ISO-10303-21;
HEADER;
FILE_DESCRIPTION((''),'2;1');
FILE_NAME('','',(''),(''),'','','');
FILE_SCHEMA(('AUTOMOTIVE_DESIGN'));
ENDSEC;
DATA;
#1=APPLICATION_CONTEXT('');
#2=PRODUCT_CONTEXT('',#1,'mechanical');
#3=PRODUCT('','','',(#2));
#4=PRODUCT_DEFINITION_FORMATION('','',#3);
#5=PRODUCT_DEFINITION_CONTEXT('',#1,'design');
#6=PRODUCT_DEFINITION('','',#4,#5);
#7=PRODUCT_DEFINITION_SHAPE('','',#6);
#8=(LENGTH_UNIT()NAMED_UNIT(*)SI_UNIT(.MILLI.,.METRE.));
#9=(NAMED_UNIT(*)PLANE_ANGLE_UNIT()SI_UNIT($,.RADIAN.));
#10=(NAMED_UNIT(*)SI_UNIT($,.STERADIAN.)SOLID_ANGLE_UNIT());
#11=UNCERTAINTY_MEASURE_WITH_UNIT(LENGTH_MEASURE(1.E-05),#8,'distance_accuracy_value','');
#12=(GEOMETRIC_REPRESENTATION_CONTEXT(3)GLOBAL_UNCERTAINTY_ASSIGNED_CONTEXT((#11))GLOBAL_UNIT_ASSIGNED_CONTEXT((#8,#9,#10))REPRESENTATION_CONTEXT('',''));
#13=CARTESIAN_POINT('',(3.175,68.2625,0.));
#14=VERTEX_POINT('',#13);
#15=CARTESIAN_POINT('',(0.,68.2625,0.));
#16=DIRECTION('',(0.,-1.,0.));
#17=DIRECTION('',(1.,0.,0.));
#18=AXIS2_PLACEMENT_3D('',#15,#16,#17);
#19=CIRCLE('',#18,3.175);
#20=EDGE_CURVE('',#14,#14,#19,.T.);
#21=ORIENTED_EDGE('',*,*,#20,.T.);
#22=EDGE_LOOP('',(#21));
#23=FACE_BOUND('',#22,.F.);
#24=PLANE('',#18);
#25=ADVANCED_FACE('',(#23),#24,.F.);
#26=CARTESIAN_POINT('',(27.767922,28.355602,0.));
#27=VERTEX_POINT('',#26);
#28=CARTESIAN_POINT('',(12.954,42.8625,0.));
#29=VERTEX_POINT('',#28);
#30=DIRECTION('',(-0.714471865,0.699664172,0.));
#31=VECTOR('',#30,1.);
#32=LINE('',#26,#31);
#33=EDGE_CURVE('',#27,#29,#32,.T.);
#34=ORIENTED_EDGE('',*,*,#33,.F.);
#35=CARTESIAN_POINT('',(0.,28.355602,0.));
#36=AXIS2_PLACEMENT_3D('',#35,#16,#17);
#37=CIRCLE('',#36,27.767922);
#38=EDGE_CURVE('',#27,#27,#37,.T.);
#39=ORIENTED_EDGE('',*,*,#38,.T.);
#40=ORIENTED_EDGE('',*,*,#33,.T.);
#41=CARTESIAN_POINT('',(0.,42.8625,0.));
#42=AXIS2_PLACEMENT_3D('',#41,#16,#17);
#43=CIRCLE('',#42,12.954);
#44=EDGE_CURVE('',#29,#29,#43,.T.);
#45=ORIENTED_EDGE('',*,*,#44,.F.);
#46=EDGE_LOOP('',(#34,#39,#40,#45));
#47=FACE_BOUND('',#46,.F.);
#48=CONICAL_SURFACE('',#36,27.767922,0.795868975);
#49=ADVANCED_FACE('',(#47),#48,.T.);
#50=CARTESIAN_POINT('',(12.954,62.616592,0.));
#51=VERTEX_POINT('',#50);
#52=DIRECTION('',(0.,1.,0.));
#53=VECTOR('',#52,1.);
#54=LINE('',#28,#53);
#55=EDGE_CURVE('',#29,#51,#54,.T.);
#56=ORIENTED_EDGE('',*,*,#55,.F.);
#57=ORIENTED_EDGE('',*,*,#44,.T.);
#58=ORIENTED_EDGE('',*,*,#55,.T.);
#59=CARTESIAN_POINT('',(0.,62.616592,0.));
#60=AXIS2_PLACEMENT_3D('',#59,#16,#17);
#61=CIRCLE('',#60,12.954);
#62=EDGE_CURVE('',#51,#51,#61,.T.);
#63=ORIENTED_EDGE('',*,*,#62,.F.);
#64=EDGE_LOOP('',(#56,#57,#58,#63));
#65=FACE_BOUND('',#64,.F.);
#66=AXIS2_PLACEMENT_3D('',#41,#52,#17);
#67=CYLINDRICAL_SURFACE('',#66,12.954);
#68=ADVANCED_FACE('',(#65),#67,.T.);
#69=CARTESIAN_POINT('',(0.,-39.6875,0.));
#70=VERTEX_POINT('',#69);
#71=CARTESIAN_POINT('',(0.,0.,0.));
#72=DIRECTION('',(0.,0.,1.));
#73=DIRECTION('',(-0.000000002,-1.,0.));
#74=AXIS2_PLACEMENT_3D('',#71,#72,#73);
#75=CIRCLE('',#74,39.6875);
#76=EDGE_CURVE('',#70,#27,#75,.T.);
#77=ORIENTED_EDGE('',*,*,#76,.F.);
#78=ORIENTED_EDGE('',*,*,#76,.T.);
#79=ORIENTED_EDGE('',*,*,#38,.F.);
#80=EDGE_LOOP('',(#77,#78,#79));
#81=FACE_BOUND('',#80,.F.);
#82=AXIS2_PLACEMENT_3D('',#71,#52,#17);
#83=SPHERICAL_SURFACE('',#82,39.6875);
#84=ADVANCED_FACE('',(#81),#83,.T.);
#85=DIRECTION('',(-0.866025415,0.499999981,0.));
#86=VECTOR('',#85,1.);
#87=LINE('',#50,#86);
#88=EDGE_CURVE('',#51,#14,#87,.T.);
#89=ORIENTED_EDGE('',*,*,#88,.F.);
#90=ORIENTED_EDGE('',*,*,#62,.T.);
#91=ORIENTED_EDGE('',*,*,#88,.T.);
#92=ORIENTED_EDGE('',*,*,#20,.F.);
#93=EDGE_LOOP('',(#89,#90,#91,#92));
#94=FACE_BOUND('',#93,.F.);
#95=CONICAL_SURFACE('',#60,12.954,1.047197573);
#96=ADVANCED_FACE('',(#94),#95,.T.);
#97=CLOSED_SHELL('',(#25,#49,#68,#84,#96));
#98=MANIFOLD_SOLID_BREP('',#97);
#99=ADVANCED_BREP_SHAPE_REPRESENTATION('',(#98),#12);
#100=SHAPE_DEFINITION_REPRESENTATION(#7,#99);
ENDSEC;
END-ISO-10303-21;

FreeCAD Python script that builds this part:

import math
import FreeCAD as App
import Part
import Sketcher
Q = App.Units.Quantity

doc = App.newDocument("Part")
body = doc.addObject("PartDesign::Body", "Body")

sketch1 = body.newObject("Sketcher::SketchObject", "Sketch")
sketch1.AttachmentSupport = (doc.getObject("XY_Plane"), [""])
sketch1.MapMode = "FlatFace"
sketch1.addGeometry([
    Part.ArcOfCircle(Part.Circle(App.Vector(0, 0, 0), App.Vector(0, 0, 1), 39.7), math.radians(-90), math.radians(46)),
    Part.LineSegment(App.Vector(27.8, 28.4, 0), App.Vector(13, 42.9, 0)),
    Part.LineSegment(App.Vector(13, 42.9, 0), App.Vector(13, 62.6, 0)),
    Part.LineSegment(App.Vector(13, 62.6, 0), App.Vector(3.2, 68.3, 0)),
    Part.LineSegment(App.Vector(3.2, 68.3, 0), App.Vector(0, 68.3, 0)),
    Part.LineSegment(App.Vector(0, 68.3, 0), App.Vector(0, -39.7, 0)),
], False)
sketch1.addConstraint([
    Sketcher.Constraint("Tangent", 0, 2, 1, 1),
    Sketcher.Constraint("Coincident", 1, 2, 2, 1),
    Sketcher.Constraint("Coincident", 2, 2, 3, 1),
    Sketcher.Constraint("Coincident", 3, 2, 4, 1),
    Sketcher.Constraint("Coincident", 4, 2, 5, 1),
    Sketcher.Constraint("Coincident", 5, 2, 0, 1),
    Sketcher.Constraint("Vertical", 2),
    Sketcher.Constraint("Horizontal", 4),
    Sketcher.Constraint("Vertical", 5),
    Sketcher.Constraint("Coincident", 0, 3, -1, 1),
    Sketcher.Constraint("PointOnObject", 4, 2, -2),
    Sketcher.Constraint("Angle", 3, Q("150.000001 deg")),
    Sketcher.Constraint("Radius", 0, Q("1.5625 in")),
    Sketcher.Constraint("DistanceY", 1, 2, 3, 2, Q("1 in")),
    Sketcher.Constraint("DistanceY", 5, 2, 5, 1, Q("4.25 in")),
    Sketcher.Constraint("DistanceX", 4, 2, 4, 1, Q("0.125 in")),
    Sketcher.Constraint("DistanceX", -1, 1, 1, 2, Q("0.51 in")),
])
revolution = body.newObject("PartDesign::Revolution", "Revolution")
revolution.Profile = sketch1
revolution.ReferenceAxis = (sketch1, ["V_Axis"])
revolution.Angle = 360

doc.recompute()
